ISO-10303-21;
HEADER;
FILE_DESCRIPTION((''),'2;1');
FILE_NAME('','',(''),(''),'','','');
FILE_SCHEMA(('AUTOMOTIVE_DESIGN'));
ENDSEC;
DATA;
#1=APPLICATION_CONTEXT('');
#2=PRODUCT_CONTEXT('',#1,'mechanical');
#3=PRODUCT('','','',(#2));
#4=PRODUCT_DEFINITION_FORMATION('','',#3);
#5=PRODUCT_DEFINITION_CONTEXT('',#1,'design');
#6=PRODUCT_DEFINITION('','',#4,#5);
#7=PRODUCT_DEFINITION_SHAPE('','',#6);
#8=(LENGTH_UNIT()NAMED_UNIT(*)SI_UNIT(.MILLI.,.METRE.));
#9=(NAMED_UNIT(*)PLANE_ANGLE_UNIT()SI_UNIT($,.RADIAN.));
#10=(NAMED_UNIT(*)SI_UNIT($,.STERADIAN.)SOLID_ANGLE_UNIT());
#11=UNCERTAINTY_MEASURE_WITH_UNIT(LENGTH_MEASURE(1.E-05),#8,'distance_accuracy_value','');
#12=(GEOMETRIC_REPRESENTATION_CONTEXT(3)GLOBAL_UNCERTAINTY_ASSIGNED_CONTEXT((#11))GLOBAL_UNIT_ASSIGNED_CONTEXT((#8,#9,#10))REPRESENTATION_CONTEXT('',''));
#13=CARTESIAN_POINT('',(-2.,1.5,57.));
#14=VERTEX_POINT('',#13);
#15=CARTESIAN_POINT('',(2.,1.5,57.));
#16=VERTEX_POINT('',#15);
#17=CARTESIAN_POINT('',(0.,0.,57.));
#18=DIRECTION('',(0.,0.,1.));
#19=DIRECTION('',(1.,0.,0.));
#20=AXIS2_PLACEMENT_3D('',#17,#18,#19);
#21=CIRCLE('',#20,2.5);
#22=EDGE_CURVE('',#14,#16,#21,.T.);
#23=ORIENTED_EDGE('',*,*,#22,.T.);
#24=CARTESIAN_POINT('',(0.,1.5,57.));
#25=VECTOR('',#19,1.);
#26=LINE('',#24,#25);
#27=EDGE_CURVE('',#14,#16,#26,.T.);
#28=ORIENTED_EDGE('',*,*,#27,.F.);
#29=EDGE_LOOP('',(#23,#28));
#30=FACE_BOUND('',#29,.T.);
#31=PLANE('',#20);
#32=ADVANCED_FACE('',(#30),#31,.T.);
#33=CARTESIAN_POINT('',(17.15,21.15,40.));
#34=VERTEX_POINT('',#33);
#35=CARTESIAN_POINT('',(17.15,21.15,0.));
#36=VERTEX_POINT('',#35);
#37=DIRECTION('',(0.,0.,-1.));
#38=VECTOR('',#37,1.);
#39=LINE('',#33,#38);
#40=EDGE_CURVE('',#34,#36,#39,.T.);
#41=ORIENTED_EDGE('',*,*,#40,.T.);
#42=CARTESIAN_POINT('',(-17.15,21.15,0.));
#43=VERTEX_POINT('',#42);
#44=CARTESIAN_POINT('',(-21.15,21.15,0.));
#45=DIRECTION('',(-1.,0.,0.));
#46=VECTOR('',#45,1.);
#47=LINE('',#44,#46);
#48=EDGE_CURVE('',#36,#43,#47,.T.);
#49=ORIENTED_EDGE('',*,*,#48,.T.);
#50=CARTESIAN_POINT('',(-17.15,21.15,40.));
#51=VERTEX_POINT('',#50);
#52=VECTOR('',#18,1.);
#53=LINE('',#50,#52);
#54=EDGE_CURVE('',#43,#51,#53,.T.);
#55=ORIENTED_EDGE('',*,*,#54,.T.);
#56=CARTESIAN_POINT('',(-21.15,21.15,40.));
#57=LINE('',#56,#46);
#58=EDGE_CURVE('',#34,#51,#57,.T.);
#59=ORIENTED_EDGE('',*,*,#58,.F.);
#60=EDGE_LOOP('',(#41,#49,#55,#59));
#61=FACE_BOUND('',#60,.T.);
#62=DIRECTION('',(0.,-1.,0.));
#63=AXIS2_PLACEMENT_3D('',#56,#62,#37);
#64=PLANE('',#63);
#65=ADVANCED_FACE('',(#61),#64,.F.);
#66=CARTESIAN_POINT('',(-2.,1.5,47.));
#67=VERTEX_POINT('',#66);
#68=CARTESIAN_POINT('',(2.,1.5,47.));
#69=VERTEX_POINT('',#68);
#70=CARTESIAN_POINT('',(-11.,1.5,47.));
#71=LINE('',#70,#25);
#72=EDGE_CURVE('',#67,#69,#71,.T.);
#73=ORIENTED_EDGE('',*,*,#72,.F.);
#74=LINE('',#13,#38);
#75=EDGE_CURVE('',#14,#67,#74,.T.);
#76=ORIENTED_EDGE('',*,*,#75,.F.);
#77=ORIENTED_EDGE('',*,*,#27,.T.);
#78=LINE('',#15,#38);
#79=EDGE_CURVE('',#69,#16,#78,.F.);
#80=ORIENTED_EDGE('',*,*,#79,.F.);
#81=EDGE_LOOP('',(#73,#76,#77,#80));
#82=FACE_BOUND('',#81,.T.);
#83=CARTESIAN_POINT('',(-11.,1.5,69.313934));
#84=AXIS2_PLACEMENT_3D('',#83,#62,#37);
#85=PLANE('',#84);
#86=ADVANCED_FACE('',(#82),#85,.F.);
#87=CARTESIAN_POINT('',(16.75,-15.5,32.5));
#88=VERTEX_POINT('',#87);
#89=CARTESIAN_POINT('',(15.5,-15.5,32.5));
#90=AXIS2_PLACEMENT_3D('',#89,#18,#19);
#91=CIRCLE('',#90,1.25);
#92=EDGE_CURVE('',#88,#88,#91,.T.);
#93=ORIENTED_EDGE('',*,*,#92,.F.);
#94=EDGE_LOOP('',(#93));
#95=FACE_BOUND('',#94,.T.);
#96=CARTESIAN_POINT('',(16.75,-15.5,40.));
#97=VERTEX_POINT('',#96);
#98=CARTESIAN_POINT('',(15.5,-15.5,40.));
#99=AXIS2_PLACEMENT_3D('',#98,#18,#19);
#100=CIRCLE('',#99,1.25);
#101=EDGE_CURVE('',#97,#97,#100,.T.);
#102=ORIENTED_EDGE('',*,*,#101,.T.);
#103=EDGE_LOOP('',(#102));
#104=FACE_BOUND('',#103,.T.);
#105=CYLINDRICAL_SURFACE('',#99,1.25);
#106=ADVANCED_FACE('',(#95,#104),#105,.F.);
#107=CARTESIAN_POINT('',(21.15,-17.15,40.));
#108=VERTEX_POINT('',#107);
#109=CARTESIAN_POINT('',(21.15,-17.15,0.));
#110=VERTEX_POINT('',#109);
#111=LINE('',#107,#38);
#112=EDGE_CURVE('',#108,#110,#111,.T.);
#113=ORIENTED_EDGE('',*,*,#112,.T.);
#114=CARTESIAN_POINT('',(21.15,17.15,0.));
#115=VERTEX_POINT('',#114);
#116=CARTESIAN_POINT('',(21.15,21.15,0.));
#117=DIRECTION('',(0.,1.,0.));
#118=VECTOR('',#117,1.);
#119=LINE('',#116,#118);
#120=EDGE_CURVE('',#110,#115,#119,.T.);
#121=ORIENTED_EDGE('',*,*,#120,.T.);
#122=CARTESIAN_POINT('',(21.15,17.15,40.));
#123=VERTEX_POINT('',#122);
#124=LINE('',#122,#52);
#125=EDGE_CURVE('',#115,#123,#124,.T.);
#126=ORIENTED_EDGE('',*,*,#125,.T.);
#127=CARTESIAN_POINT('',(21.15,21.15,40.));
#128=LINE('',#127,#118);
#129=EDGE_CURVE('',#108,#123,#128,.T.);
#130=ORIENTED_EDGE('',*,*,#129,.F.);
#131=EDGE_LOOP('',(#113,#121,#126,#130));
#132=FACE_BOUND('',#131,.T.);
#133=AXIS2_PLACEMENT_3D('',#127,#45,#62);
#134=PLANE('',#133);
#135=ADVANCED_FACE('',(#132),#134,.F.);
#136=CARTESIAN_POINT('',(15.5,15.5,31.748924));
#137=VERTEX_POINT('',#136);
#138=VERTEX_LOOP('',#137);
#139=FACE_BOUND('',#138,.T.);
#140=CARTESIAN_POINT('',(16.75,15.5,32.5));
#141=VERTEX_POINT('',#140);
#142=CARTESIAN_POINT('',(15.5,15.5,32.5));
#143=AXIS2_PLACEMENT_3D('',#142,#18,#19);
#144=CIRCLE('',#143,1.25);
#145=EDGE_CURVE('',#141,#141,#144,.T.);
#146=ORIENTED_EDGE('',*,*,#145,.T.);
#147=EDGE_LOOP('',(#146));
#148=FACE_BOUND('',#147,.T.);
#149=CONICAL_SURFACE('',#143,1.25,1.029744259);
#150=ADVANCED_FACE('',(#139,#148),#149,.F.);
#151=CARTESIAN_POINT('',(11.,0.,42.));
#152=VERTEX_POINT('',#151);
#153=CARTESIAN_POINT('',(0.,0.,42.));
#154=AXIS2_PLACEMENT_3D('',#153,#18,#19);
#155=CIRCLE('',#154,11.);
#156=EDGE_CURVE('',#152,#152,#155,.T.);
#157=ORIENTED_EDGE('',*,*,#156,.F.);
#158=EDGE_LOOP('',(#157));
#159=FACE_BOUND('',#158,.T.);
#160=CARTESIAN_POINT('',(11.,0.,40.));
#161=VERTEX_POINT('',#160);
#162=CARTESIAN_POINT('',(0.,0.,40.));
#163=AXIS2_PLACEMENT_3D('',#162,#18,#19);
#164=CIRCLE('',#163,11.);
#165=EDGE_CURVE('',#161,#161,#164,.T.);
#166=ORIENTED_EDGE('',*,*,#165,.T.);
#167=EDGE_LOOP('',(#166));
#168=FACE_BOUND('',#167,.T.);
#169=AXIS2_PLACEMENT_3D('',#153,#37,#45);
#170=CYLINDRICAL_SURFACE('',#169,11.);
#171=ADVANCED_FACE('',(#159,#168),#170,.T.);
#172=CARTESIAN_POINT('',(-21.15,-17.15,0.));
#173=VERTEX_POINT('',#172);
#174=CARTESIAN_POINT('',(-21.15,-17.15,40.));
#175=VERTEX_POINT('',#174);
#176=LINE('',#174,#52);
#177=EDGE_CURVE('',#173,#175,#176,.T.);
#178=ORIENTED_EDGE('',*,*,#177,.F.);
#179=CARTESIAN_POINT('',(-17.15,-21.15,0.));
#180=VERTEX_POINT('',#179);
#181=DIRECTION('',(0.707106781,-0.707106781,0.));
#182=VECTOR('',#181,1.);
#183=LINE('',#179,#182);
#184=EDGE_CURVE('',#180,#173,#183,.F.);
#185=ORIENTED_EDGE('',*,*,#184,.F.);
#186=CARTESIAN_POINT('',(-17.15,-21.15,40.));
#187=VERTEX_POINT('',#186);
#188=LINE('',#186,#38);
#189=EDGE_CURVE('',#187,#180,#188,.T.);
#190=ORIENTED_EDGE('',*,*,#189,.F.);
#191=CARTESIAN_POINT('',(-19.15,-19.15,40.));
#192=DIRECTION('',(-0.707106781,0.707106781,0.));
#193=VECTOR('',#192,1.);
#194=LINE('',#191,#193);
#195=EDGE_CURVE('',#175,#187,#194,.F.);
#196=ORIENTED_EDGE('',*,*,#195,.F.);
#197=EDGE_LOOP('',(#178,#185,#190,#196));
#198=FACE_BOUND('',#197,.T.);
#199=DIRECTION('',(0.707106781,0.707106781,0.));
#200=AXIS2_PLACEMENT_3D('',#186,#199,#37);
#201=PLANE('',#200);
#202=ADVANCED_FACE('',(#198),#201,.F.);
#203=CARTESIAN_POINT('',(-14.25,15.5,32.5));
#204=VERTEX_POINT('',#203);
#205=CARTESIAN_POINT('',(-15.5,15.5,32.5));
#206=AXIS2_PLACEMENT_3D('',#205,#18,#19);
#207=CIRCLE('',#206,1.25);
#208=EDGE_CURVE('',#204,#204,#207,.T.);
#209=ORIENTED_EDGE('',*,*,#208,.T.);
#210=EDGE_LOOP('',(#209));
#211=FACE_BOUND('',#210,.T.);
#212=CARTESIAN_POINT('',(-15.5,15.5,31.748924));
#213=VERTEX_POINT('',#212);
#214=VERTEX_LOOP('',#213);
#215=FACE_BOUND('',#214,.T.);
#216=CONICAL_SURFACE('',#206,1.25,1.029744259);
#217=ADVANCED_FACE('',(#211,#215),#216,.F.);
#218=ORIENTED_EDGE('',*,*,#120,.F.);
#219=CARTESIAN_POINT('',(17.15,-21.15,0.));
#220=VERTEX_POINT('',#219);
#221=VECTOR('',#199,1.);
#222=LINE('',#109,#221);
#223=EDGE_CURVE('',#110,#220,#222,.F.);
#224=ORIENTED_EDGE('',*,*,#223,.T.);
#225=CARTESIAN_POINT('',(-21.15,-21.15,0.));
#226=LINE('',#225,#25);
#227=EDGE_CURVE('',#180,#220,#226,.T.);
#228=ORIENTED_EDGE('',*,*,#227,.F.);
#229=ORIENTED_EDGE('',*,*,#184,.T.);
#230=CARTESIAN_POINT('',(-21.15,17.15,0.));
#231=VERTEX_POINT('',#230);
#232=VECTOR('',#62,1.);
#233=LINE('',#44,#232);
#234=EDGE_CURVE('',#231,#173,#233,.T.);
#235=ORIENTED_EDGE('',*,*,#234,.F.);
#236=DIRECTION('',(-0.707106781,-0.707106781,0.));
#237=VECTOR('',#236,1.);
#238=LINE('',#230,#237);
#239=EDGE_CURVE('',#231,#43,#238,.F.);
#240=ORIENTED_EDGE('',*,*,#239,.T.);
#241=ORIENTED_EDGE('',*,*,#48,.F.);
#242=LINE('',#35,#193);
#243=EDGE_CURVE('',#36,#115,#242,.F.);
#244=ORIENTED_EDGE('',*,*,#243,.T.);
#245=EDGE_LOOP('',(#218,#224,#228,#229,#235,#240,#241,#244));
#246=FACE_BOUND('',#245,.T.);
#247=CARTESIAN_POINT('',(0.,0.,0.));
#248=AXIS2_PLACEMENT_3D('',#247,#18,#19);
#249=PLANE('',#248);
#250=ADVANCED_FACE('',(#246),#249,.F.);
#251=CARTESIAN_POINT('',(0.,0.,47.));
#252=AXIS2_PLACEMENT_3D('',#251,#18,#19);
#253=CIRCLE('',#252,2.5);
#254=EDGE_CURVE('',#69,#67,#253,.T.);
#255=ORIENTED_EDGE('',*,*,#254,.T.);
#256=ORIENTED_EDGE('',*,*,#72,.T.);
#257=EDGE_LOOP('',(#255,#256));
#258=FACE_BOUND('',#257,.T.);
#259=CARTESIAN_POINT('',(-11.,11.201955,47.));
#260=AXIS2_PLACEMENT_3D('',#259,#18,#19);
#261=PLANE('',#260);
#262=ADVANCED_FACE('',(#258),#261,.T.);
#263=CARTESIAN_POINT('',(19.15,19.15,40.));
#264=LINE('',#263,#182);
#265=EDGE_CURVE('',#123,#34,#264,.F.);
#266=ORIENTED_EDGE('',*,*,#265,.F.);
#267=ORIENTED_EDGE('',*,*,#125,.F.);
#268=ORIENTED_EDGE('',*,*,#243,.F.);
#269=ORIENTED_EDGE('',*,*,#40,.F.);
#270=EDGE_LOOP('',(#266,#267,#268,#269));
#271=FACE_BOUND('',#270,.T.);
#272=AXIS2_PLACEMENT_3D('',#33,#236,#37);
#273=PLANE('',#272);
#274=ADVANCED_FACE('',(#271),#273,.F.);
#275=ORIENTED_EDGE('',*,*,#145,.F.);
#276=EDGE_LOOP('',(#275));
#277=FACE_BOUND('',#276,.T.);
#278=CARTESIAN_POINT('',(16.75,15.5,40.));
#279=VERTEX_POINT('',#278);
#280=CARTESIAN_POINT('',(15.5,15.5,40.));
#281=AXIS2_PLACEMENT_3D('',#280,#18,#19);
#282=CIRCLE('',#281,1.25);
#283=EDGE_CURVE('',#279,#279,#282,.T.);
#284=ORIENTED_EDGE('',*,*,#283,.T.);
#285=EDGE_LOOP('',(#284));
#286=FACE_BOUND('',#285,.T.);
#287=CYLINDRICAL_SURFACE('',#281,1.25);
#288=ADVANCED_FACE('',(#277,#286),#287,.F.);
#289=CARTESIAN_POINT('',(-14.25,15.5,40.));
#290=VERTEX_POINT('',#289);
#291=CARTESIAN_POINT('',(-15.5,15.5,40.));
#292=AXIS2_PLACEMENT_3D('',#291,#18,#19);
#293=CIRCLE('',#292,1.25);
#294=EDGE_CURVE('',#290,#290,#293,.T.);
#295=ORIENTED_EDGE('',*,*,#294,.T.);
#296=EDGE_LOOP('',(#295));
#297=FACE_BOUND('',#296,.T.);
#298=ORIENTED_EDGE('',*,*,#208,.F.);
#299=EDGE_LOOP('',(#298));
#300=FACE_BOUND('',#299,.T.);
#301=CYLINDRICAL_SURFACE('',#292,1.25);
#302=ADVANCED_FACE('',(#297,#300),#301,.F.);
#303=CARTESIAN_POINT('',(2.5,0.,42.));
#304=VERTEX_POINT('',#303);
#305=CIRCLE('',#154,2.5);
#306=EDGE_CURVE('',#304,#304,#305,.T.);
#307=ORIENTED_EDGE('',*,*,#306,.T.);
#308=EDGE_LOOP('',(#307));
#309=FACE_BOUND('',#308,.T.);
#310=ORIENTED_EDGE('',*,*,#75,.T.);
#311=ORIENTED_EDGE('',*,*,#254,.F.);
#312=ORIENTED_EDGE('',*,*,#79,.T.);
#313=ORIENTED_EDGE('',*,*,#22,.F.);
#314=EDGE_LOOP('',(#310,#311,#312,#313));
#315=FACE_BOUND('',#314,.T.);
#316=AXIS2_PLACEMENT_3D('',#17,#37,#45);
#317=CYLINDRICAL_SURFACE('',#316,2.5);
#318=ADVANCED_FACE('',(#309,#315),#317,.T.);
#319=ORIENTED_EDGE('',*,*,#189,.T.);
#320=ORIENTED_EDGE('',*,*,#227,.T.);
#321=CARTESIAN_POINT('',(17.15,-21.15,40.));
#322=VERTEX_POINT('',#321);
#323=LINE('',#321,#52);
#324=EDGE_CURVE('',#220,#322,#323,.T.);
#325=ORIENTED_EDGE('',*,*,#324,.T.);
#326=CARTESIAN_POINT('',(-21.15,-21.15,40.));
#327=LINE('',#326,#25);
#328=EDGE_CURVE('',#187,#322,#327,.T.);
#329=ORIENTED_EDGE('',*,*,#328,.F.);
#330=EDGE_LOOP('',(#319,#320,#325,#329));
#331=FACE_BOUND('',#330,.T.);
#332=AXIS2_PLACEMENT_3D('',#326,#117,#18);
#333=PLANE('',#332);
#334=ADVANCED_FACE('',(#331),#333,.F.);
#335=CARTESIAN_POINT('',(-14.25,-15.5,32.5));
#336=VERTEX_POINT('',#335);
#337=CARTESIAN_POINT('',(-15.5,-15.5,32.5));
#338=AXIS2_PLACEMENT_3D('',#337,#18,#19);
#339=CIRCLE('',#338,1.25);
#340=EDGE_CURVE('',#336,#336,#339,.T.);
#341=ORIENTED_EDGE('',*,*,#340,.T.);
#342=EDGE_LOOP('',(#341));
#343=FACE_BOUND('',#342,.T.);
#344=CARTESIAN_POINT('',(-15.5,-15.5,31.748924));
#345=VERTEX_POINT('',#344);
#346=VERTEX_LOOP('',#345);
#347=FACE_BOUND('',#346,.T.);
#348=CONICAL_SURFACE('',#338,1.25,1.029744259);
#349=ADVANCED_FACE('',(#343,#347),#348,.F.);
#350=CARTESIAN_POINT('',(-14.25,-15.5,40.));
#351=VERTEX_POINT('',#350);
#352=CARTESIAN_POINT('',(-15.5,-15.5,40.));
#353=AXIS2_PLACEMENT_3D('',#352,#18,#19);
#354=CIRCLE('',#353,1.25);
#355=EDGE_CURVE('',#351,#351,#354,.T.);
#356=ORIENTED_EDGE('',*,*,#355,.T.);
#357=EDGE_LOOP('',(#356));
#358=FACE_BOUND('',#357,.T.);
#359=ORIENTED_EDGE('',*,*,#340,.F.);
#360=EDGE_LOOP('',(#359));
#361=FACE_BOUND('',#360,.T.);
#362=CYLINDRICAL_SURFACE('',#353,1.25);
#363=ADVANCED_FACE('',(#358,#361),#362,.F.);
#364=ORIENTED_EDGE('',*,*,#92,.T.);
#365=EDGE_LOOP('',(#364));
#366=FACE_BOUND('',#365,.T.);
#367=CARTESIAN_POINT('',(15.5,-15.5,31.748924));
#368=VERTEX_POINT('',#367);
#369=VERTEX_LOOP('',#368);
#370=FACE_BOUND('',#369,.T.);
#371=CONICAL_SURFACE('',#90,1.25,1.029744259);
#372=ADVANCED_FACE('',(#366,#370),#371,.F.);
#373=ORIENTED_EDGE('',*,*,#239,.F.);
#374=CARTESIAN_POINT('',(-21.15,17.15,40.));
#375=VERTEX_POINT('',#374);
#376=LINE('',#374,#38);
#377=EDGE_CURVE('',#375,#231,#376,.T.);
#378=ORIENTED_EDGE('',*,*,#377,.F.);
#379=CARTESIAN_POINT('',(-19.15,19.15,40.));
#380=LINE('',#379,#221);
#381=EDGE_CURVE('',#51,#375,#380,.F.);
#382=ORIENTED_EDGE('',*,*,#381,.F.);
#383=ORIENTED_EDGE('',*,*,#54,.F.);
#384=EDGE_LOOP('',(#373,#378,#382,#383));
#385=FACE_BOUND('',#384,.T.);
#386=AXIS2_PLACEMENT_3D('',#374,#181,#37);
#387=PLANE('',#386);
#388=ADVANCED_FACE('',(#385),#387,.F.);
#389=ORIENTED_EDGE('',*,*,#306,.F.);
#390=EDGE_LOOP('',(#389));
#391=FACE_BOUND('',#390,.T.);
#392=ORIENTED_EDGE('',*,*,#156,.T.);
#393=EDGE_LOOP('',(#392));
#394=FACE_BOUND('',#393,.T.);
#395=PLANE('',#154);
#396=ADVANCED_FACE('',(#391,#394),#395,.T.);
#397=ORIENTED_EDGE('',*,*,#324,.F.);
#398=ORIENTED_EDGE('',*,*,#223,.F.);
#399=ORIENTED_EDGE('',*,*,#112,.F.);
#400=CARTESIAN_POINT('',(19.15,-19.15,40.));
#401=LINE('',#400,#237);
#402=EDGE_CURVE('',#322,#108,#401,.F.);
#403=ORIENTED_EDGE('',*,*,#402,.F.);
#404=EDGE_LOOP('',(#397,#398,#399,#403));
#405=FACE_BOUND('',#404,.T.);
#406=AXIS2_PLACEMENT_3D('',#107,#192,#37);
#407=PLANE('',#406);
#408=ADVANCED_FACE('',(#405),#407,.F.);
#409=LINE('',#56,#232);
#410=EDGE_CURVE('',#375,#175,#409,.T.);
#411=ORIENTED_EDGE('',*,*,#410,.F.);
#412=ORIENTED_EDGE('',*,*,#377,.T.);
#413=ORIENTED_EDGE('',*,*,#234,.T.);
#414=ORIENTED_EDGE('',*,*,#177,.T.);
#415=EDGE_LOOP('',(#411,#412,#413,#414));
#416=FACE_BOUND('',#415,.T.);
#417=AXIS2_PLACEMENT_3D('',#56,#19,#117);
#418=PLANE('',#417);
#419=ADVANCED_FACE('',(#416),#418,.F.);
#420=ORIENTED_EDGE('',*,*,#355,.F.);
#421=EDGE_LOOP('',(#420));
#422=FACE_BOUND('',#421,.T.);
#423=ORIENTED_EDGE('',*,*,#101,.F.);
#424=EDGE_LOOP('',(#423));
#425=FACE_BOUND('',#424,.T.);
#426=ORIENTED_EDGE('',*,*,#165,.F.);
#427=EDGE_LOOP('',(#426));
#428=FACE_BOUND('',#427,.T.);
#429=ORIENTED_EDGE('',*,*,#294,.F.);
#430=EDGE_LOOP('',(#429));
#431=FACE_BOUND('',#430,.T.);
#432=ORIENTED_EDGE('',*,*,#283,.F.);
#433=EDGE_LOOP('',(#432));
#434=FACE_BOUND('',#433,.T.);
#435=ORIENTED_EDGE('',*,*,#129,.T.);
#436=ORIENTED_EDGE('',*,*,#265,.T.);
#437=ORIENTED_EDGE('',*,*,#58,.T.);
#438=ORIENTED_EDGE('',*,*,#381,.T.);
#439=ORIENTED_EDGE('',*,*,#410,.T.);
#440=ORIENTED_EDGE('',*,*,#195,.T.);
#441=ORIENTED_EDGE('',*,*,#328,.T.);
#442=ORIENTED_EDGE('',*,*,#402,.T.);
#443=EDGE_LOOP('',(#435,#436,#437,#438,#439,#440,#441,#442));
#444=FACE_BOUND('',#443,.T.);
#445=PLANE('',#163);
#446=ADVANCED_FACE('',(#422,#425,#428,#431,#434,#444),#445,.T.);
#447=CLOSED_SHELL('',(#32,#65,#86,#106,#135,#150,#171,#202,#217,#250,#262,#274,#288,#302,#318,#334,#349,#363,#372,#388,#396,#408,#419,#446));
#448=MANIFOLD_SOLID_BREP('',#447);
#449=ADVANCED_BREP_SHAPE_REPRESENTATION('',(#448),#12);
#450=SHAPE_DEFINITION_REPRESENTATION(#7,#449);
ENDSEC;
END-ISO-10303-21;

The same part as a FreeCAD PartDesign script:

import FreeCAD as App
import Part
import Sketcher
from FreeCAD import Vector


def edges_at(feature, points):
    """Names of the edges that pass closest to the given points."""
    edges = feature.Shape.Edges
    near = lambda p: min(range(len(edges)), key=lambda i: edges[i].distToShape(Part.Vertex(*p))[0])
    return sorted({f"Edge{near(p) + 1}" for p in points})

doc = App.newDocument("Part")
body = doc.addObject("PartDesign::Body", "Body")

# Sketch on XY plane
sketch1 = body.newObject("Sketcher::SketchObject", "Sketch")
sketch1.AttachmentSupport = (doc.getObject("XY_Plane"), [""])
sketch1.MapMode = "FlatFace"
sketch1.addGeometry(Part.LineSegment(Vector(-21, 21, 0), Vector(-21, -21, 0)), False)
sketch1.addGeometry(Part.LineSegment(Vector(-21, -21, 0), Vector(21, -21, 0)), False)
sketch1.addGeometry(Part.LineSegment(Vector(21, -21, 0), Vector(21, 21, 0)), False)
sketch1.addGeometry(Part.LineSegment(Vector(21, 21, 0), Vector(-21, 21, 0)), False)
sketch1.addConstraint(Sketcher.Constraint("Coincident", 0, 2, 1, 1))
sketch1.addConstraint(Sketcher.Constraint("Coincident", 1, 2, 2, 1))
sketch1.addConstraint(Sketcher.Constraint("Coincident", 2, 2, 3, 1))
sketch1.addConstraint(Sketcher.Constraint("Coincident", 3, 2, 0, 1))
sketch1.addConstraint(Sketcher.Constraint("Vertical", 0))
sketch1.addConstraint(Sketcher.Constraint("Horizontal", 1))
sketch1.addConstraint(Sketcher.Constraint("Vertical", 2))
sketch1.addConstraint(Sketcher.Constraint("Horizontal", 3))
sketch1.addConstraint(Sketcher.Constraint("Symmetric", 0, 2, 2, 2, -1, 1))
sketch1.addConstraint(Sketcher.Constraint("Equal", 3, 0))
sketch1.addConstraint(Sketcher.Constraint("DistanceX", 1, 1, 1, 2, 42.3))
pad1 = body.newObject("PartDesign::Pad", "Pad")
pad1.Profile = sketch1
pad1.Length = 40

# Sketch on XY plane
sketch2 = body.newObject("Sketcher::SketchObject", "Sketch001")
sketch2.AttachmentSupport = (doc.getObject("XY_Plane"), [""])
sketch2.MapMode = "FlatFace"
sketch2.AttachmentOffset = App.Placement(Vector(0, 0, 40), App.Rotation())
sketch2.addGeometry(Part.Circle(Vector(0, 0, 0), Vector(0, 0, 1), 11), False)
sketch2.addConstraint(Sketcher.Constraint("Coincident", 0, 3, -1, 1))
sketch2.addConstraint(Sketcher.Constraint("Diameter", 0, 22.0))
pad2 = body.newObject("PartDesign::Pad", "Pad001")
pad2.Profile = sketch2
pad2.Length = 2

# Sketch on XY plane
sketch3 = body.newObject("Sketcher::SketchObject", "Sketch002")
sketch3.AttachmentSupport = (doc.getObject("XY_Plane"), [""])
sketch3.MapMode = "FlatFace"
sketch3.AttachmentOffset = App.Placement(Vector(0, 0, 42), App.Rotation())
sketch3.addGeometry(Part.Circle(Vector(0, 0, 0), Vector(0, 0, 1), 2.5), False)
sketch3.addConstraint(Sketcher.Constraint("Coincident", 0, 3, -1, 1))
sketch3.addConstraint(Sketcher.Constraint("Diameter", 0, 5.0))
pad3 = body.newObject("PartDesign::Pad", "Pad002")
pad3.Profile = sketch3
pad3.Length = 15

# Sketch on YZ plane
sketch4 = body.newObject("Sketcher::SketchObject", "Sketch003")
sketch4.AttachmentSupport = (doc.getObject("YZ_Plane"), [""])
sketch4.MapMode = "FlatFace"
sketch4.addGeometry(Part.LineSegment(Vector(11, 69, 0), Vector(2, 69, 0)), False)
sketch4.addGeometry(Part.LineSegment(Vector(2, 69, 0), Vector(2, 47, 0)), False)
sketch4.addGeometry(Part.LineSegment(Vector(2, 47, 0), Vector(11, 47, 0)), False)
sketch4.addGeometry(Part.LineSegment(Vector(11, 47, 0), Vector(11, 69, 0)), False)
sketch4.addConstraint(Sketcher.Constraint("Coincident", 0, 2, 1, 1))
sketch4.addConstraint(Sketcher.Constraint("Coincident", 1, 2, 2, 1))
sketch4.addConstraint(Sketcher.Constraint("Coincident", 2, 2, 3, 1))
sketch4.addConstraint(Sketcher.Constraint("Coincident", 3, 2, 0, 1))
sketch4.addConstraint(Sketcher.Constraint("Horizontal", 0))
sketch4.addConstraint(Sketcher.Constraint("Vertical", 1))
sketch4.addConstraint(Sketcher.Constraint("Horizontal", 2))
sketch4.addConstraint(Sketcher.Constraint("Vertical", 3))
sketch4.addConstraint(Sketcher.Constraint("DistanceY", -1, 1, 1, 2, 47.0))
sketch4.addConstraint(Sketcher.Constraint("DistanceX", -1, 1, 0, 2, 1.5))
sketch4.addConstraint(Sketcher.Constraint("DistanceX", 0, 2, 0, 1, 9.701955))
sketch4.addConstraint(Sketcher.Constraint("DistanceY", 1, 2, 1, 1, 22.313934))
pocket1 = body.newObject("PartDesign::Pocket", "Pocket")
pocket1.Profile = sketch4
pocket1.Length = 22
pocket1.Midplane = True
doc.recompute()

chamfer = body.newObject("PartDesign::Chamfer", "Chamfer")
chamfer.Base = (pocket1, edges_at(pocket1, [
    (21.15, -21.15, 20),
    (-21.15, -21.15, 20),
    (-21.15, 21.15, 20),
    (21.15, 21.15, 20),
]))
chamfer.Size = 4

# Sketch on XY plane
sketch5 = body.newObject("Sketcher::SketchObject", "Sketch004")
sketch5.AttachmentSupport = (doc.getObject("XY_Plane"), [""])
sketch5.MapMode = "FlatFace"
sketch5.AttachmentOffset = App.Placement(Vector(0, 0, 40), App.Rotation())
sketch5.addGeometry(Part.Circle(Vector(-15.5, 15.5, 0), Vector(0, 0, 1), 1.2), False)
sketch5.addGeometry(Part.Circle(Vector(-15.5, -15.5, 0), Vector(0, 0, 1), 1.2), False)
sketch5.addGeometry(Part.Circle(Vector(15.5, -15.5, 0), Vector(0, 0, 1), 1.2), False)
sketch5.addGeometry(Part.Circle(Vector(15.5, 15.5, 0), Vector(0, 0, 1), 1.2), False)
sketch5.addConstraint(Sketcher.Constraint("Equal", 0, 1))
sketch5.addConstraint(Sketcher.Constraint("Equal", 1, 2))
sketch5.addConstraint(Sketcher.Constraint("Equal", 2, 3))
sketch5.addConstraint(Sketcher.Constraint("Symmetric", 0, 3, 2, 3, -1, 1))
sketch5.addConstraint(Sketcher.Constraint("Symmetric", 1, 3, 3, 3, -1, 1))
sketch5.addConstraint(Sketcher.Constraint("Symmetric", 1, 3, 2, 3, -2))
sketch5.addConstraint(Sketcher.Constraint("Diameter", 0, 2.5))
sketch5.addConstraint(Sketcher.Constraint("DistanceY", 1, 3, 0, 3, 31.0))
sketch5.addConstraint(Sketcher.Constraint("DistanceX", 1, 3, 2, 3, 31.0))
doc.recompute()
hole = body.newObject("PartDesign::Hole", "Hole")
hole.Profile = sketch5
hole.ThreadType = "None"
hole.Diameter = 2.5
hole.DepthType = "Dimension"
hole.Depth = 7.5
hole.DrillPoint = "Angled"
hole.DrillPointAngle = 118

doc.recompute()
